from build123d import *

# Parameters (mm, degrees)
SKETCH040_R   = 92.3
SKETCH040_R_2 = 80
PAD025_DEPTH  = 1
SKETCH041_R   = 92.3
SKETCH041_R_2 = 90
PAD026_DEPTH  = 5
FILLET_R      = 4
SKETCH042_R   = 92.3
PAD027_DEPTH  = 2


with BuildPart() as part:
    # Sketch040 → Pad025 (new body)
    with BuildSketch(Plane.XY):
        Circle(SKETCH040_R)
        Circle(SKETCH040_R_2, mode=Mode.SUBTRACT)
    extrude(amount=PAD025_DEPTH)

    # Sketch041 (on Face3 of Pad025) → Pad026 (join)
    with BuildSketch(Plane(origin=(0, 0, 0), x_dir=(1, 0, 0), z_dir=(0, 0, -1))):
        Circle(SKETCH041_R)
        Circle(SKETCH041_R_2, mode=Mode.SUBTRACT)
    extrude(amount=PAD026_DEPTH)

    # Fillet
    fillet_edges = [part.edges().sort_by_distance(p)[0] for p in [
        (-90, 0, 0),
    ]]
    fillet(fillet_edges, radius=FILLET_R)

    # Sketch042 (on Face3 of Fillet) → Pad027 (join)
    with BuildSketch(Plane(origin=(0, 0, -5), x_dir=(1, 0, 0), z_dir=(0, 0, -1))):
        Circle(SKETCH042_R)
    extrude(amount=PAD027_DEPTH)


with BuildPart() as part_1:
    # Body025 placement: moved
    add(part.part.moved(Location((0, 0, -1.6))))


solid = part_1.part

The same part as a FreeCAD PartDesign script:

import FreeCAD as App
import Part
import Sketcher

V = App.Vector


def edges_at(feature, points):
    """Names of the edges that pass closest to the given points."""
    edges = feature.Shape.Edges
    near = lambda p: min(range(len(edges)), key=lambda i: edges[i].distToShape(Part.Vertex(*p))[0])
    return sorted({f"Edge{near(p) + 1}" for p in points})

doc = App.newDocument("Part")
body = doc.addObject("PartDesign::Body", "Body")

# Sketch on XY plane
sketch1 = body.newObject("Sketcher::SketchObject", "Sketch")
sketch1.AttachmentSupport = (doc.getObject("XY_Plane"), [""])
sketch1.MapMode = "FlatFace"
sketch1.addGeometry(Part.Circle(V(0, 0, 0), V(0, 0, 1), 92), False)
sketch1.addGeometry(Part.Circle(V(0, 0, 0), V(0, 0, 1), 80), False)
sketch1.addConstraint(Sketcher.Constraint("Coincident", 0, 3, -1, 1))
sketch1.addConstraint(Sketcher.Constraint("Coincident", 1, 3, -1, 1))
sketch1.addConstraint(Sketcher.Constraint("Diameter", 1, 160.0))
sketch1.addConstraint(Sketcher.Constraint("Diameter", 0, 184.6))
pad1 = body.newObject("PartDesign::Pad", "Pad")
pad1.Profile = sketch1
pad1.Length = 1

# Sketch on XY plane
sketch2 = body.newObject("Sketcher::SketchObject", "Sketch001")
sketch2.AttachmentSupport = (doc.getObject("XY_Plane"), [""])
sketch2.MapMode = "FlatFace"
sketch2.addGeometry(Part.Circle(V(0, 0, 0), V(0, 0, 1), 92), False)
sketch2.addGeometry(Part.Circle(V(0, 0, 0), V(0, 0, 1), 90), False)
sketch2.addConstraint(Sketcher.Constraint("Coincident", 0, 3, -1, 1))
sketch2.addConstraint(Sketcher.Constraint("Coincident", 1, 3, -1, 1))
sketch2.addConstraint(Sketcher.Constraint("Diameter", 1, 180.0))
sketch2.addConstraint(Sketcher.Constraint("Diameter", 0, 184.6))
pad2 = body.newObject("PartDesign::Pad", "Pad001")
pad2.Profile = sketch2
pad2.Length = 5
pad2.Reversed = True
doc.recompute()

fillet = body.newObject("PartDesign::Fillet", "Fillet")
fillet.Base = (pad2, edges_at(pad2, [(-90, 0, 0)]))
fillet.Radius = 4

# Sketch on XY plane
sketch3 = body.newObject("Sketcher::SketchObject", "Sketch002")
sketch3.AttachmentSupport = (doc.getObject("XY_Plane"), [""])
sketch3.MapMode = "FlatFace"
sketch3.AttachmentOffset = App.Placement(V(0, 0, -5), App.Rotation())
sketch3.addGeometry(Part.Circle(V(0, 0, 0), V(0, 0, 1), 92), False)
sketch3.addConstraint(Sketcher.Constraint("Coincident", 0, 3, -1, 1))
sketch3.addConstraint(Sketcher.Constraint("Diameter", 0, 184.6))
pad3 = body.newObject("PartDesign::Pad", "Pad002")
pad3.Profile = sketch3
pad3.Length = 2
pad3.Reversed = True
body2 = doc.addObject("PartDesign::Body", "Body001")
doc.recompute()

body.Placement = App.Placement(V(0, 0, -1.6), App.Rotation(V(0, 0, 1), 0))
boolean = body2.newObject("PartDesign::Boolean", "Boolean")
boolean.Type = "Fuse"
boolean.addObjects([body])

doc.recompute()
